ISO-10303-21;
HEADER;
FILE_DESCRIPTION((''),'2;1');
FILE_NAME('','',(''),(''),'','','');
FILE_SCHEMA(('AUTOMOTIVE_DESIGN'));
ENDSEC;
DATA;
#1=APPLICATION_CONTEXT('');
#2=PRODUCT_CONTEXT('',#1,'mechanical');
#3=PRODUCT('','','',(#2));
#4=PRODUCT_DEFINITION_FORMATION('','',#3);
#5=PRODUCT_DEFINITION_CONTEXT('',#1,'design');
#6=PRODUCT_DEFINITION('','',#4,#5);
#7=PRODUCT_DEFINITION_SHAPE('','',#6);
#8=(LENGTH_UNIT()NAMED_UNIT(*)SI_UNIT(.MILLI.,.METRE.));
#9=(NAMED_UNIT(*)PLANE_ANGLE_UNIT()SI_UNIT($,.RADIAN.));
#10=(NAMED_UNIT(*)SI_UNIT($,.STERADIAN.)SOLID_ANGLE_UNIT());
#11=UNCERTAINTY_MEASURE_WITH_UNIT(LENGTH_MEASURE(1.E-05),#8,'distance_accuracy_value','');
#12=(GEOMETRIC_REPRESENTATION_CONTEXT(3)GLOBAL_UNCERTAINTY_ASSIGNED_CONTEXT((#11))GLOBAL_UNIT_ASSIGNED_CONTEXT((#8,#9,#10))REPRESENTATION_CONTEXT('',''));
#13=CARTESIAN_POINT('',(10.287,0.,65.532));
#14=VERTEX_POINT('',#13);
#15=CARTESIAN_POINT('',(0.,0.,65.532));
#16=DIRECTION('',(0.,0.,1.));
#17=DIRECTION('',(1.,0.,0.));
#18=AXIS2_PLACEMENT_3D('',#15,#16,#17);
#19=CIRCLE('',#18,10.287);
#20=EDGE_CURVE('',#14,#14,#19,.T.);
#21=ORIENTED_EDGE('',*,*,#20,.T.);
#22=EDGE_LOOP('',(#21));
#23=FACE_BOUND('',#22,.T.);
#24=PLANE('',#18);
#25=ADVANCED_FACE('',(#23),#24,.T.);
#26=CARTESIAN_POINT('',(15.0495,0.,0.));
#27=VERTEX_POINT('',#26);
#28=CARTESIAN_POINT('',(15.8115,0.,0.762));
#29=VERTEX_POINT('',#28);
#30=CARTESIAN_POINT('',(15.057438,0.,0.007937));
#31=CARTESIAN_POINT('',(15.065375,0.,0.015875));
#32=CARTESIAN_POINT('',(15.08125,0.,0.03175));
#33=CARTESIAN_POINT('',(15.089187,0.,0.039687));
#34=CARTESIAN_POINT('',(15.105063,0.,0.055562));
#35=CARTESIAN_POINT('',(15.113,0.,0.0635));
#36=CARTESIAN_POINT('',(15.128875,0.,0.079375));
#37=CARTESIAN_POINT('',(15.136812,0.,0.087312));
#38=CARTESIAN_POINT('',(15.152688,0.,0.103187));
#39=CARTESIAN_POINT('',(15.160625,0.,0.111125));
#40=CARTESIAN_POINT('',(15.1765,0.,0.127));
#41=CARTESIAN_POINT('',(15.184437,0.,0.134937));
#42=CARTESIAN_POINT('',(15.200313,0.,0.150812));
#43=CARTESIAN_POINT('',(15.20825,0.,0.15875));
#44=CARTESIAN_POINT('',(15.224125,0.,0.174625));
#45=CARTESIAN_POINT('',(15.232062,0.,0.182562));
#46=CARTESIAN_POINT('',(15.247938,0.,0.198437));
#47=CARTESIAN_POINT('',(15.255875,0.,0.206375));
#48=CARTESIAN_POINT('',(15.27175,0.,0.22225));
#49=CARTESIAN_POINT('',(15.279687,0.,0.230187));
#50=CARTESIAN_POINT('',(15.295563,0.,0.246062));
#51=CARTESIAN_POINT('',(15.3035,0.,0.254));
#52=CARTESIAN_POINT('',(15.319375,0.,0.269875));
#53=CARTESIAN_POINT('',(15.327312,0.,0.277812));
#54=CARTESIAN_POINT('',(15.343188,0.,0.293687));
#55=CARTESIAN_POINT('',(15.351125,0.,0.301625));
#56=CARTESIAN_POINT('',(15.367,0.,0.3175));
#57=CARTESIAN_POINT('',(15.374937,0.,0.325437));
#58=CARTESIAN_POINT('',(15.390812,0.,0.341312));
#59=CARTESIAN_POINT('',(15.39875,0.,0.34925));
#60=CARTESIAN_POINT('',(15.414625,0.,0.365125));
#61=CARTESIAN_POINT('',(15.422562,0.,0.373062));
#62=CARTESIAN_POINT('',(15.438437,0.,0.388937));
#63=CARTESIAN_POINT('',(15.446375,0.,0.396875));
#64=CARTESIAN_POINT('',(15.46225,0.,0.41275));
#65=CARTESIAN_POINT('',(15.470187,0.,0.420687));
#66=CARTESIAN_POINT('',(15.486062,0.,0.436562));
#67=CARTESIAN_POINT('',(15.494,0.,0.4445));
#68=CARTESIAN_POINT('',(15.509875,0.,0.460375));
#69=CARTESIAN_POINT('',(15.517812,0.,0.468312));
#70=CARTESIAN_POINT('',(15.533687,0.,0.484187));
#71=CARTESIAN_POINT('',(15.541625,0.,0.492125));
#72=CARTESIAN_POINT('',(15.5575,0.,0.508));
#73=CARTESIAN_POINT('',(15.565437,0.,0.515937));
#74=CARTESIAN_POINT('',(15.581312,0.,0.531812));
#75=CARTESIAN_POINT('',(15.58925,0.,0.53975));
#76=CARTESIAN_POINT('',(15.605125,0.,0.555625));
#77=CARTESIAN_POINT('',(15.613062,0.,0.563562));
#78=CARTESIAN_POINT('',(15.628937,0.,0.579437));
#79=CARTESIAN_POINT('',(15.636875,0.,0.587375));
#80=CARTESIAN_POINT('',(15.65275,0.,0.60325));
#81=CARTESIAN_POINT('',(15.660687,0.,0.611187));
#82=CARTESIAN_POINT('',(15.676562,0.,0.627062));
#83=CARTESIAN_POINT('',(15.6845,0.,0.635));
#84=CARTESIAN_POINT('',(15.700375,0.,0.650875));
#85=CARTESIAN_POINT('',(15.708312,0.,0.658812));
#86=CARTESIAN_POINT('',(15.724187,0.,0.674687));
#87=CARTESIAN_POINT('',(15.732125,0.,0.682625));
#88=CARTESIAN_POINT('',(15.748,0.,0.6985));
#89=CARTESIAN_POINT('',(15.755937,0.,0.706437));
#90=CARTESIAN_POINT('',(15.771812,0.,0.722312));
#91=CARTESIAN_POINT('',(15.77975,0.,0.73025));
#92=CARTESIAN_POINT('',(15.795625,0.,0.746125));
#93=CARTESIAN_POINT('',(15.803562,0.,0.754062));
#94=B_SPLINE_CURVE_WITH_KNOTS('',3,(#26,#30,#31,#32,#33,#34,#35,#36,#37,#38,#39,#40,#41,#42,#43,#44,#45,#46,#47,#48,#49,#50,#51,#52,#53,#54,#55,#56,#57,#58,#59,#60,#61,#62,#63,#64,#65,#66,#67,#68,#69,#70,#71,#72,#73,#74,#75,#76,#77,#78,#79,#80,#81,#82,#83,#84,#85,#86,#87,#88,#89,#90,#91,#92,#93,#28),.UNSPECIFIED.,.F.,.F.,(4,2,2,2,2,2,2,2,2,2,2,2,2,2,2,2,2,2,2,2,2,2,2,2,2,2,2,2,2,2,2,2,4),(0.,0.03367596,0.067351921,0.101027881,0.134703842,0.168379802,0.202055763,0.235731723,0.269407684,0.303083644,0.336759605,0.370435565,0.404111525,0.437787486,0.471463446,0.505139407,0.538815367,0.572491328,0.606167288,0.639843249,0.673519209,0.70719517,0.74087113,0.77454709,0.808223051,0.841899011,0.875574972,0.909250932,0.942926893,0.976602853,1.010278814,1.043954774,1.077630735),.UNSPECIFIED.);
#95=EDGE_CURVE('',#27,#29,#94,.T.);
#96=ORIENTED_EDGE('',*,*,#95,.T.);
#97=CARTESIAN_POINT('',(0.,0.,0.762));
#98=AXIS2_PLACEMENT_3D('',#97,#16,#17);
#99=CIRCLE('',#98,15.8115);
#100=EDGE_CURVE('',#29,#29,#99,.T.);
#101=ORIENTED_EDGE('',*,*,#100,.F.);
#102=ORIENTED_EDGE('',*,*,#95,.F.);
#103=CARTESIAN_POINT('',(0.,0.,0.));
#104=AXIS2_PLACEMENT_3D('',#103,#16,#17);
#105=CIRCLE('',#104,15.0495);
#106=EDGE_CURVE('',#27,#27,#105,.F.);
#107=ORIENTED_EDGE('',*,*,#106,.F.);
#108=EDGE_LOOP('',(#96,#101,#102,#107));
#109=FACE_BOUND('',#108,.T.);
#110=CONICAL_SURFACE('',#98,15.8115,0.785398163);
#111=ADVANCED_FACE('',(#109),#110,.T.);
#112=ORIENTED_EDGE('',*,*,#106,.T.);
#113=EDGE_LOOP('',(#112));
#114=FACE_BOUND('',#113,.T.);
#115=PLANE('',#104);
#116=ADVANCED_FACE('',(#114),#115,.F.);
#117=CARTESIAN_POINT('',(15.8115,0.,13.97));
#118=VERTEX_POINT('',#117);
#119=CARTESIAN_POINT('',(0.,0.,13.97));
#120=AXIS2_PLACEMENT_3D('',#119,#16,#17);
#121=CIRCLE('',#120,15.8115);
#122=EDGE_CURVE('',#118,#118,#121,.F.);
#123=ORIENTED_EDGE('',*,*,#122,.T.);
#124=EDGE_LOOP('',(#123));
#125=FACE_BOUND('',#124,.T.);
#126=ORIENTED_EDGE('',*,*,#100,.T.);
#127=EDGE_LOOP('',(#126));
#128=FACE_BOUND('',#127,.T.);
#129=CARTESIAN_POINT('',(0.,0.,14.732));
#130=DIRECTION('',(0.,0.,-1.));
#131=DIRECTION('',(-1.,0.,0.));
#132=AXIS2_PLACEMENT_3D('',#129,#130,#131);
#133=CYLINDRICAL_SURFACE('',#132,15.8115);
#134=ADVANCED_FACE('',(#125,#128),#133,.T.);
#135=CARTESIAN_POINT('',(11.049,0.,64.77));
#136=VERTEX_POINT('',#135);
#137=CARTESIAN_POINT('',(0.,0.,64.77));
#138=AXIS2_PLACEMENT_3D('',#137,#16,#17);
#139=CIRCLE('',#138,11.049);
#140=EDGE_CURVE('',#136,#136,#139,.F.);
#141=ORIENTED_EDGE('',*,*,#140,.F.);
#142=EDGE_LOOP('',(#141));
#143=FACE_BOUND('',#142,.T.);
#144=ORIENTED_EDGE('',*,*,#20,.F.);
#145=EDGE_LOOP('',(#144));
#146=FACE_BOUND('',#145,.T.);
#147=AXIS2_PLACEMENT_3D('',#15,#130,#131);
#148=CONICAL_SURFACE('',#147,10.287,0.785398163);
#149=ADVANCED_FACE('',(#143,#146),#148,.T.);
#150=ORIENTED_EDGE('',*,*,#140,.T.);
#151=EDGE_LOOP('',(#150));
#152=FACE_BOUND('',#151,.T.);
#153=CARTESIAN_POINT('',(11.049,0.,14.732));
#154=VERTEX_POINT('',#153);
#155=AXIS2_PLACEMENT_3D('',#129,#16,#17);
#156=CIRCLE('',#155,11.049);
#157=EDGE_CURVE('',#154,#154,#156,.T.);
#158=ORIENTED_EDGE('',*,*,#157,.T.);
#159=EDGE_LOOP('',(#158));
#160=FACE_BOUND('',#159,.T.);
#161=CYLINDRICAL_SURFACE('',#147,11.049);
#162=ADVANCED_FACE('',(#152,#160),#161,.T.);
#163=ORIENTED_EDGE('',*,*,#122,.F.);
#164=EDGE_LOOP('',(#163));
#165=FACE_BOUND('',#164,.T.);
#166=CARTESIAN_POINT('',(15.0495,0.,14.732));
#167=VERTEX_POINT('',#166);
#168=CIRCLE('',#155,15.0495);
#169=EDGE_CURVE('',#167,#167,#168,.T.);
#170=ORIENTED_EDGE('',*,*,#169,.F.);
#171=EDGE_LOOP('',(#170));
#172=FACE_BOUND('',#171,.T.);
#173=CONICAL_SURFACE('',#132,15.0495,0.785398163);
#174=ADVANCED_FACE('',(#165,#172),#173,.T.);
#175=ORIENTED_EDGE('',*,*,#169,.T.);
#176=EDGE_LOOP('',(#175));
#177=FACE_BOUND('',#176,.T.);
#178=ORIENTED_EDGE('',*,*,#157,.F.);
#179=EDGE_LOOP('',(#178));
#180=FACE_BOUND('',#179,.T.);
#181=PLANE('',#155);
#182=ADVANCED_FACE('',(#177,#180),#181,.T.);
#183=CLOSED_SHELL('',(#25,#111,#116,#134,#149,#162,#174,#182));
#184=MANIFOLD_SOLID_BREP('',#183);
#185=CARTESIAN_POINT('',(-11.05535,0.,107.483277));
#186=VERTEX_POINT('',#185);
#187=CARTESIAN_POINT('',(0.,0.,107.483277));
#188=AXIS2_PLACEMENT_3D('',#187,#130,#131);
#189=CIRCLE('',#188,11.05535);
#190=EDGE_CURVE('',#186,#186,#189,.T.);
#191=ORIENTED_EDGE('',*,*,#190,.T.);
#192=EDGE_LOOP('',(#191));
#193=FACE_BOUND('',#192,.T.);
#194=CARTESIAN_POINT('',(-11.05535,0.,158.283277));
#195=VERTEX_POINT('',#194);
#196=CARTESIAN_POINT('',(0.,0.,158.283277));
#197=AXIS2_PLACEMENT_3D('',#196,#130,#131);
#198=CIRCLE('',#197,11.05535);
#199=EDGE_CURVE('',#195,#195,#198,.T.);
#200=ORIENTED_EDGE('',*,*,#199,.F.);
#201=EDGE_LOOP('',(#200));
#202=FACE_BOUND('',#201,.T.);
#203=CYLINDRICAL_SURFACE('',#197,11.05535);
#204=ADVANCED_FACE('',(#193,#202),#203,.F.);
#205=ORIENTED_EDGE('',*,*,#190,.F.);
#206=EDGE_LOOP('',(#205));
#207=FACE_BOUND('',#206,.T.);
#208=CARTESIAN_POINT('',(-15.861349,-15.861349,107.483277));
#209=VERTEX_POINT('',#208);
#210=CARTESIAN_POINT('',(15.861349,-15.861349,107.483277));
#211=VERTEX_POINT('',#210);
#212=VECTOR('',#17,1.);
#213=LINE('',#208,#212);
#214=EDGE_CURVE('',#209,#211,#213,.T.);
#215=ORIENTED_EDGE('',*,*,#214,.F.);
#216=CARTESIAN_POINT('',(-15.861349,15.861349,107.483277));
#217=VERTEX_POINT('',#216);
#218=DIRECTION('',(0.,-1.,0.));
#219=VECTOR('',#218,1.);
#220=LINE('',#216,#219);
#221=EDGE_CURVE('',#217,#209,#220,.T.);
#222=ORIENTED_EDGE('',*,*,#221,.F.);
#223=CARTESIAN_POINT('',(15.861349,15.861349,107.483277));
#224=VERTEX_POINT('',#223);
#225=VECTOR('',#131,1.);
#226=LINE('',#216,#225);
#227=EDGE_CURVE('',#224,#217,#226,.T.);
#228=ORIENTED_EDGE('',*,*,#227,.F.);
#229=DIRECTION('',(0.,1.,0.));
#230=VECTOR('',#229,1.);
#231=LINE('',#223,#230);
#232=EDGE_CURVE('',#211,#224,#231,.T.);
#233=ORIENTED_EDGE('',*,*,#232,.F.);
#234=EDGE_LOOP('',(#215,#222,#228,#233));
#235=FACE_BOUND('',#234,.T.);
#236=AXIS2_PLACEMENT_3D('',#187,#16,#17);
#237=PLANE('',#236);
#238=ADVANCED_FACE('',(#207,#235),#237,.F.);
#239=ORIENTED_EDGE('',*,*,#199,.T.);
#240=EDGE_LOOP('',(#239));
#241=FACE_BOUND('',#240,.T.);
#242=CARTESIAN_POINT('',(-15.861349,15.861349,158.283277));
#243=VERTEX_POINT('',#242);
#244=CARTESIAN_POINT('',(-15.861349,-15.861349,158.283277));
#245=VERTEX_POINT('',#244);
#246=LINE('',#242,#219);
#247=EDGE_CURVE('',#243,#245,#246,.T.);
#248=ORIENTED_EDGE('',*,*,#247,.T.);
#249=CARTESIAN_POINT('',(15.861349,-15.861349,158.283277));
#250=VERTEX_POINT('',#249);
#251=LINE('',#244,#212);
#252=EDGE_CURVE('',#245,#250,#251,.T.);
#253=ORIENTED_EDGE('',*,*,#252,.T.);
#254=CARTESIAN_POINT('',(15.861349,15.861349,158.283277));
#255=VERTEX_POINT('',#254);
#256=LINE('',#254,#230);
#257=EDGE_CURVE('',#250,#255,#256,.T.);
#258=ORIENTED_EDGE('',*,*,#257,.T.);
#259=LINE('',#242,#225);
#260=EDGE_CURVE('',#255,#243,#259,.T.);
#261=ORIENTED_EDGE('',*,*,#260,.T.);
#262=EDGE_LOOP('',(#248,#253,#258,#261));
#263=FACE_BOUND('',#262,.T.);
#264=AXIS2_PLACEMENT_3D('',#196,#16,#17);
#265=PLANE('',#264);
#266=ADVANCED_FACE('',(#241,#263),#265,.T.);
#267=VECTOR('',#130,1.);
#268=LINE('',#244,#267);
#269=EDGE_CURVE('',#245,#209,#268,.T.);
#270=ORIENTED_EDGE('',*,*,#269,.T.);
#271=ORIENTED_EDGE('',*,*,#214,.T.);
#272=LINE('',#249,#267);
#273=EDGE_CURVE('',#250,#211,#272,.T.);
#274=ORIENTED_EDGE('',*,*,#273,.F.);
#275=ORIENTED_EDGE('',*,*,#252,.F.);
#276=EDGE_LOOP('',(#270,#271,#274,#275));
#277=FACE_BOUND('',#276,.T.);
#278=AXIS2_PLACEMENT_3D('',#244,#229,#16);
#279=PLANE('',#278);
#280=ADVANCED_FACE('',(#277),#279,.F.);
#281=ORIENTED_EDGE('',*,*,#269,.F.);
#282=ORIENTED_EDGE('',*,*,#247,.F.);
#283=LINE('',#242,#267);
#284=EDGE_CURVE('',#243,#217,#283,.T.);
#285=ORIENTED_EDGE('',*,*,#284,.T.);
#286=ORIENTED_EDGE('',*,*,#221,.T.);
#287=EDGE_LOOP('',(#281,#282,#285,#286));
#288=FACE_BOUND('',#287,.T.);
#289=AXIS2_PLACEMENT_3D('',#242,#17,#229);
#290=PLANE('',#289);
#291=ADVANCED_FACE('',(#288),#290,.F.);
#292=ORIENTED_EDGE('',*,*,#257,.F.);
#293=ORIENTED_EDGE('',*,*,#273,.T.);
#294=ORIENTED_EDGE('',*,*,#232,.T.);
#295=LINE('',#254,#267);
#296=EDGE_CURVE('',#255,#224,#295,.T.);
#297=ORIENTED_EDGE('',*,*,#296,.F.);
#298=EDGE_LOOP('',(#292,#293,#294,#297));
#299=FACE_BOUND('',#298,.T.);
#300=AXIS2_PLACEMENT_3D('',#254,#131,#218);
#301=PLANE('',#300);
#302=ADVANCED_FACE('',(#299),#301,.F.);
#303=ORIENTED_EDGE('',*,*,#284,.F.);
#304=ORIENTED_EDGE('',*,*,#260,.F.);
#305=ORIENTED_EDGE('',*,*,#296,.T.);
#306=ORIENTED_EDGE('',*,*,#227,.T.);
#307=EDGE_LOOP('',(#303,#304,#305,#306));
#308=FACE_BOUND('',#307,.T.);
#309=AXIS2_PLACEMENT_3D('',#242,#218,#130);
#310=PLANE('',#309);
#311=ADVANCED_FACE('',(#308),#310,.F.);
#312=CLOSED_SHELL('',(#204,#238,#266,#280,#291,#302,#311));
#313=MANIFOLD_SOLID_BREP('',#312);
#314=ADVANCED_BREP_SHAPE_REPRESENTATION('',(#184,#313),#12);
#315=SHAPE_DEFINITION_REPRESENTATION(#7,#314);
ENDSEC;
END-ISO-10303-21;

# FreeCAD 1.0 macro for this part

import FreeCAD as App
import Part
import Sketcher

V = App.Vector
Q = App.Units.Quantity


def edges_at(feature, points):
    """Names of the edges that pass closest to the given points."""
    edges = feature.Shape.Edges
    near = lambda p: min(range(len(edges)), key=lambda i: edges[i].distToShape(Part.Vertex(*p))[0])
    return sorted({f"Edge{near(p) + 1}" for p in points})


def add_polygon(sketch, points):
    """Adds a closed chain of lines whose ends are joined by coincident constraints."""
    first, n = sketch.GeometryCount, len(points)
    for a, b in zip(points, points[1:] + points[:1]):
        sketch.addGeometry(Part.LineSegment(App.Vector(*a, 0), App.Vector(*b, 0)), False)
    for i in range(n):
        sketch.addConstraint(Sketcher.Constraint("Coincident", first + i, 2, first + (i + 1) % n, 1))

doc = App.newDocument("Part")
body = doc.addObject("PartDesign::Body", "Body")

sketch1 = body.newObject("Sketcher::SketchObject", "Sketch")
sketch1.AttachmentSupport = (doc.getObject("XY_Plane"), [""])
sketch1.MapMode = "FlatFace"
sketch1.addGeometry(Part.Circle(V(0, 0, 0), V(0, 0, 1), 16), False)
sketch1.addConstraint(Sketcher.Constraint("Coincident", 0, 3, -1, 1))
sketch1.addConstraint(Sketcher.Constraint("Diameter", 0, Q("1.245 in")))
pad1 = body.newObject("PartDesign::Pad", "Pad")
pad1.Profile = sketch1
pad1.Length = Q("0.58 in")

sketch2 = body.newObject("Sketcher::SketchObject", "Sketch001")
sketch2.AttachmentSupport = (doc.getObject("XY_Plane"), [""])
sketch2.MapMode = "FlatFace"
sketch2.AttachmentOffset = App.Placement(V(0, 0, 0.58 * 25.4), App.Rotation())
sketch2.addGeometry(Part.Circle(V(0, 0, 0), V(0, 0, 1), 11), False)
sketch2.addConstraint(Sketcher.Constraint("Coincident", 0, 3, -1, 1))
sketch2.addConstraint(Sketcher.Constraint("Diameter", 0, Q("0.87 in")))
pad2 = body.newObject("PartDesign::Pad", "Pad001")
pad2.Profile = sketch2
pad2.Length = Q("2 in")
doc.recompute()

chamfer = body.newObject("PartDesign::Chamfer", "Chamfer")
chamfer.Base = (pad2, edges_at(pad2, [(-15.812, 0, 0), (-15.812, 0, 14.732), (-11.049, 0, 65.532)]))
chamfer.Size = Q("0.03 in")
body2 = doc.addObject("PartDesign::Body", "Body001")

sketch3 = body2.newObject("Sketcher::SketchObject", "Sketch002")
sketch3.AttachmentSupport = (doc.getObject("XY_Plane001"), [""])
sketch3.MapMode = "FlatFace"
sketch3.AttachmentOffset = App.Placement(V(0, 0, 107.483277), App.Rotation())
add_polygon(sketch3, [(-16, 16), (-16, -16), (16, -16), (16, 16)])
sketch3.addConstraint(Sketcher.Constraint("Vertical", 0))
sketch3.addConstraint(Sketcher.Constraint("Horizontal", 1))
sketch3.addConstraint(Sketcher.Constraint("Vertical", 2))
sketch3.addConstraint(Sketcher.Constraint("Horizontal", 3))
sketch3.addConstraint(Sketcher.Constraint("Symmetric", 0, 2, 2, 2, -1, 1))
sketch3.addConstraint(Sketcher.Constraint("Equal", 3, 0))
sketch3.addConstraint(Sketcher.Constraint("DistanceX", 1, 1, 1, 2, 31.722698))
pad3 = body2.newObject("PartDesign::Pad", "Pad002")
pad3.Profile = sketch3
pad3.Length = Q("2 in")

sketch4 = body2.newObject("Sketcher::SketchObject", "Sketch003")
sketch4.AttachmentSupport = (doc.getObject("XY_Plane001"), [""])
sketch4.MapMode = "FlatFace"
sketch4.AttachmentOffset = App.Placement(V(0, 0, 107.483277), App.Rotation())
sketch4.addGeometry(Part.Circle(V(0, 0, 0), V(0, 0, 1), 11), False)
sketch4.addConstraint(Sketcher.Constraint("Coincident", 0, 3, -1, 1))
sketch4.addConstraint(Sketcher.Constraint("Diameter", 0, Q("0.8705 in")))
pocket1 = body2.newObject("PartDesign::Pocket", "Pocket")
pocket1.Profile = sketch4
pocket1.Type = "ThroughAll"
pocket1.Reversed = True

doc.recompute()
